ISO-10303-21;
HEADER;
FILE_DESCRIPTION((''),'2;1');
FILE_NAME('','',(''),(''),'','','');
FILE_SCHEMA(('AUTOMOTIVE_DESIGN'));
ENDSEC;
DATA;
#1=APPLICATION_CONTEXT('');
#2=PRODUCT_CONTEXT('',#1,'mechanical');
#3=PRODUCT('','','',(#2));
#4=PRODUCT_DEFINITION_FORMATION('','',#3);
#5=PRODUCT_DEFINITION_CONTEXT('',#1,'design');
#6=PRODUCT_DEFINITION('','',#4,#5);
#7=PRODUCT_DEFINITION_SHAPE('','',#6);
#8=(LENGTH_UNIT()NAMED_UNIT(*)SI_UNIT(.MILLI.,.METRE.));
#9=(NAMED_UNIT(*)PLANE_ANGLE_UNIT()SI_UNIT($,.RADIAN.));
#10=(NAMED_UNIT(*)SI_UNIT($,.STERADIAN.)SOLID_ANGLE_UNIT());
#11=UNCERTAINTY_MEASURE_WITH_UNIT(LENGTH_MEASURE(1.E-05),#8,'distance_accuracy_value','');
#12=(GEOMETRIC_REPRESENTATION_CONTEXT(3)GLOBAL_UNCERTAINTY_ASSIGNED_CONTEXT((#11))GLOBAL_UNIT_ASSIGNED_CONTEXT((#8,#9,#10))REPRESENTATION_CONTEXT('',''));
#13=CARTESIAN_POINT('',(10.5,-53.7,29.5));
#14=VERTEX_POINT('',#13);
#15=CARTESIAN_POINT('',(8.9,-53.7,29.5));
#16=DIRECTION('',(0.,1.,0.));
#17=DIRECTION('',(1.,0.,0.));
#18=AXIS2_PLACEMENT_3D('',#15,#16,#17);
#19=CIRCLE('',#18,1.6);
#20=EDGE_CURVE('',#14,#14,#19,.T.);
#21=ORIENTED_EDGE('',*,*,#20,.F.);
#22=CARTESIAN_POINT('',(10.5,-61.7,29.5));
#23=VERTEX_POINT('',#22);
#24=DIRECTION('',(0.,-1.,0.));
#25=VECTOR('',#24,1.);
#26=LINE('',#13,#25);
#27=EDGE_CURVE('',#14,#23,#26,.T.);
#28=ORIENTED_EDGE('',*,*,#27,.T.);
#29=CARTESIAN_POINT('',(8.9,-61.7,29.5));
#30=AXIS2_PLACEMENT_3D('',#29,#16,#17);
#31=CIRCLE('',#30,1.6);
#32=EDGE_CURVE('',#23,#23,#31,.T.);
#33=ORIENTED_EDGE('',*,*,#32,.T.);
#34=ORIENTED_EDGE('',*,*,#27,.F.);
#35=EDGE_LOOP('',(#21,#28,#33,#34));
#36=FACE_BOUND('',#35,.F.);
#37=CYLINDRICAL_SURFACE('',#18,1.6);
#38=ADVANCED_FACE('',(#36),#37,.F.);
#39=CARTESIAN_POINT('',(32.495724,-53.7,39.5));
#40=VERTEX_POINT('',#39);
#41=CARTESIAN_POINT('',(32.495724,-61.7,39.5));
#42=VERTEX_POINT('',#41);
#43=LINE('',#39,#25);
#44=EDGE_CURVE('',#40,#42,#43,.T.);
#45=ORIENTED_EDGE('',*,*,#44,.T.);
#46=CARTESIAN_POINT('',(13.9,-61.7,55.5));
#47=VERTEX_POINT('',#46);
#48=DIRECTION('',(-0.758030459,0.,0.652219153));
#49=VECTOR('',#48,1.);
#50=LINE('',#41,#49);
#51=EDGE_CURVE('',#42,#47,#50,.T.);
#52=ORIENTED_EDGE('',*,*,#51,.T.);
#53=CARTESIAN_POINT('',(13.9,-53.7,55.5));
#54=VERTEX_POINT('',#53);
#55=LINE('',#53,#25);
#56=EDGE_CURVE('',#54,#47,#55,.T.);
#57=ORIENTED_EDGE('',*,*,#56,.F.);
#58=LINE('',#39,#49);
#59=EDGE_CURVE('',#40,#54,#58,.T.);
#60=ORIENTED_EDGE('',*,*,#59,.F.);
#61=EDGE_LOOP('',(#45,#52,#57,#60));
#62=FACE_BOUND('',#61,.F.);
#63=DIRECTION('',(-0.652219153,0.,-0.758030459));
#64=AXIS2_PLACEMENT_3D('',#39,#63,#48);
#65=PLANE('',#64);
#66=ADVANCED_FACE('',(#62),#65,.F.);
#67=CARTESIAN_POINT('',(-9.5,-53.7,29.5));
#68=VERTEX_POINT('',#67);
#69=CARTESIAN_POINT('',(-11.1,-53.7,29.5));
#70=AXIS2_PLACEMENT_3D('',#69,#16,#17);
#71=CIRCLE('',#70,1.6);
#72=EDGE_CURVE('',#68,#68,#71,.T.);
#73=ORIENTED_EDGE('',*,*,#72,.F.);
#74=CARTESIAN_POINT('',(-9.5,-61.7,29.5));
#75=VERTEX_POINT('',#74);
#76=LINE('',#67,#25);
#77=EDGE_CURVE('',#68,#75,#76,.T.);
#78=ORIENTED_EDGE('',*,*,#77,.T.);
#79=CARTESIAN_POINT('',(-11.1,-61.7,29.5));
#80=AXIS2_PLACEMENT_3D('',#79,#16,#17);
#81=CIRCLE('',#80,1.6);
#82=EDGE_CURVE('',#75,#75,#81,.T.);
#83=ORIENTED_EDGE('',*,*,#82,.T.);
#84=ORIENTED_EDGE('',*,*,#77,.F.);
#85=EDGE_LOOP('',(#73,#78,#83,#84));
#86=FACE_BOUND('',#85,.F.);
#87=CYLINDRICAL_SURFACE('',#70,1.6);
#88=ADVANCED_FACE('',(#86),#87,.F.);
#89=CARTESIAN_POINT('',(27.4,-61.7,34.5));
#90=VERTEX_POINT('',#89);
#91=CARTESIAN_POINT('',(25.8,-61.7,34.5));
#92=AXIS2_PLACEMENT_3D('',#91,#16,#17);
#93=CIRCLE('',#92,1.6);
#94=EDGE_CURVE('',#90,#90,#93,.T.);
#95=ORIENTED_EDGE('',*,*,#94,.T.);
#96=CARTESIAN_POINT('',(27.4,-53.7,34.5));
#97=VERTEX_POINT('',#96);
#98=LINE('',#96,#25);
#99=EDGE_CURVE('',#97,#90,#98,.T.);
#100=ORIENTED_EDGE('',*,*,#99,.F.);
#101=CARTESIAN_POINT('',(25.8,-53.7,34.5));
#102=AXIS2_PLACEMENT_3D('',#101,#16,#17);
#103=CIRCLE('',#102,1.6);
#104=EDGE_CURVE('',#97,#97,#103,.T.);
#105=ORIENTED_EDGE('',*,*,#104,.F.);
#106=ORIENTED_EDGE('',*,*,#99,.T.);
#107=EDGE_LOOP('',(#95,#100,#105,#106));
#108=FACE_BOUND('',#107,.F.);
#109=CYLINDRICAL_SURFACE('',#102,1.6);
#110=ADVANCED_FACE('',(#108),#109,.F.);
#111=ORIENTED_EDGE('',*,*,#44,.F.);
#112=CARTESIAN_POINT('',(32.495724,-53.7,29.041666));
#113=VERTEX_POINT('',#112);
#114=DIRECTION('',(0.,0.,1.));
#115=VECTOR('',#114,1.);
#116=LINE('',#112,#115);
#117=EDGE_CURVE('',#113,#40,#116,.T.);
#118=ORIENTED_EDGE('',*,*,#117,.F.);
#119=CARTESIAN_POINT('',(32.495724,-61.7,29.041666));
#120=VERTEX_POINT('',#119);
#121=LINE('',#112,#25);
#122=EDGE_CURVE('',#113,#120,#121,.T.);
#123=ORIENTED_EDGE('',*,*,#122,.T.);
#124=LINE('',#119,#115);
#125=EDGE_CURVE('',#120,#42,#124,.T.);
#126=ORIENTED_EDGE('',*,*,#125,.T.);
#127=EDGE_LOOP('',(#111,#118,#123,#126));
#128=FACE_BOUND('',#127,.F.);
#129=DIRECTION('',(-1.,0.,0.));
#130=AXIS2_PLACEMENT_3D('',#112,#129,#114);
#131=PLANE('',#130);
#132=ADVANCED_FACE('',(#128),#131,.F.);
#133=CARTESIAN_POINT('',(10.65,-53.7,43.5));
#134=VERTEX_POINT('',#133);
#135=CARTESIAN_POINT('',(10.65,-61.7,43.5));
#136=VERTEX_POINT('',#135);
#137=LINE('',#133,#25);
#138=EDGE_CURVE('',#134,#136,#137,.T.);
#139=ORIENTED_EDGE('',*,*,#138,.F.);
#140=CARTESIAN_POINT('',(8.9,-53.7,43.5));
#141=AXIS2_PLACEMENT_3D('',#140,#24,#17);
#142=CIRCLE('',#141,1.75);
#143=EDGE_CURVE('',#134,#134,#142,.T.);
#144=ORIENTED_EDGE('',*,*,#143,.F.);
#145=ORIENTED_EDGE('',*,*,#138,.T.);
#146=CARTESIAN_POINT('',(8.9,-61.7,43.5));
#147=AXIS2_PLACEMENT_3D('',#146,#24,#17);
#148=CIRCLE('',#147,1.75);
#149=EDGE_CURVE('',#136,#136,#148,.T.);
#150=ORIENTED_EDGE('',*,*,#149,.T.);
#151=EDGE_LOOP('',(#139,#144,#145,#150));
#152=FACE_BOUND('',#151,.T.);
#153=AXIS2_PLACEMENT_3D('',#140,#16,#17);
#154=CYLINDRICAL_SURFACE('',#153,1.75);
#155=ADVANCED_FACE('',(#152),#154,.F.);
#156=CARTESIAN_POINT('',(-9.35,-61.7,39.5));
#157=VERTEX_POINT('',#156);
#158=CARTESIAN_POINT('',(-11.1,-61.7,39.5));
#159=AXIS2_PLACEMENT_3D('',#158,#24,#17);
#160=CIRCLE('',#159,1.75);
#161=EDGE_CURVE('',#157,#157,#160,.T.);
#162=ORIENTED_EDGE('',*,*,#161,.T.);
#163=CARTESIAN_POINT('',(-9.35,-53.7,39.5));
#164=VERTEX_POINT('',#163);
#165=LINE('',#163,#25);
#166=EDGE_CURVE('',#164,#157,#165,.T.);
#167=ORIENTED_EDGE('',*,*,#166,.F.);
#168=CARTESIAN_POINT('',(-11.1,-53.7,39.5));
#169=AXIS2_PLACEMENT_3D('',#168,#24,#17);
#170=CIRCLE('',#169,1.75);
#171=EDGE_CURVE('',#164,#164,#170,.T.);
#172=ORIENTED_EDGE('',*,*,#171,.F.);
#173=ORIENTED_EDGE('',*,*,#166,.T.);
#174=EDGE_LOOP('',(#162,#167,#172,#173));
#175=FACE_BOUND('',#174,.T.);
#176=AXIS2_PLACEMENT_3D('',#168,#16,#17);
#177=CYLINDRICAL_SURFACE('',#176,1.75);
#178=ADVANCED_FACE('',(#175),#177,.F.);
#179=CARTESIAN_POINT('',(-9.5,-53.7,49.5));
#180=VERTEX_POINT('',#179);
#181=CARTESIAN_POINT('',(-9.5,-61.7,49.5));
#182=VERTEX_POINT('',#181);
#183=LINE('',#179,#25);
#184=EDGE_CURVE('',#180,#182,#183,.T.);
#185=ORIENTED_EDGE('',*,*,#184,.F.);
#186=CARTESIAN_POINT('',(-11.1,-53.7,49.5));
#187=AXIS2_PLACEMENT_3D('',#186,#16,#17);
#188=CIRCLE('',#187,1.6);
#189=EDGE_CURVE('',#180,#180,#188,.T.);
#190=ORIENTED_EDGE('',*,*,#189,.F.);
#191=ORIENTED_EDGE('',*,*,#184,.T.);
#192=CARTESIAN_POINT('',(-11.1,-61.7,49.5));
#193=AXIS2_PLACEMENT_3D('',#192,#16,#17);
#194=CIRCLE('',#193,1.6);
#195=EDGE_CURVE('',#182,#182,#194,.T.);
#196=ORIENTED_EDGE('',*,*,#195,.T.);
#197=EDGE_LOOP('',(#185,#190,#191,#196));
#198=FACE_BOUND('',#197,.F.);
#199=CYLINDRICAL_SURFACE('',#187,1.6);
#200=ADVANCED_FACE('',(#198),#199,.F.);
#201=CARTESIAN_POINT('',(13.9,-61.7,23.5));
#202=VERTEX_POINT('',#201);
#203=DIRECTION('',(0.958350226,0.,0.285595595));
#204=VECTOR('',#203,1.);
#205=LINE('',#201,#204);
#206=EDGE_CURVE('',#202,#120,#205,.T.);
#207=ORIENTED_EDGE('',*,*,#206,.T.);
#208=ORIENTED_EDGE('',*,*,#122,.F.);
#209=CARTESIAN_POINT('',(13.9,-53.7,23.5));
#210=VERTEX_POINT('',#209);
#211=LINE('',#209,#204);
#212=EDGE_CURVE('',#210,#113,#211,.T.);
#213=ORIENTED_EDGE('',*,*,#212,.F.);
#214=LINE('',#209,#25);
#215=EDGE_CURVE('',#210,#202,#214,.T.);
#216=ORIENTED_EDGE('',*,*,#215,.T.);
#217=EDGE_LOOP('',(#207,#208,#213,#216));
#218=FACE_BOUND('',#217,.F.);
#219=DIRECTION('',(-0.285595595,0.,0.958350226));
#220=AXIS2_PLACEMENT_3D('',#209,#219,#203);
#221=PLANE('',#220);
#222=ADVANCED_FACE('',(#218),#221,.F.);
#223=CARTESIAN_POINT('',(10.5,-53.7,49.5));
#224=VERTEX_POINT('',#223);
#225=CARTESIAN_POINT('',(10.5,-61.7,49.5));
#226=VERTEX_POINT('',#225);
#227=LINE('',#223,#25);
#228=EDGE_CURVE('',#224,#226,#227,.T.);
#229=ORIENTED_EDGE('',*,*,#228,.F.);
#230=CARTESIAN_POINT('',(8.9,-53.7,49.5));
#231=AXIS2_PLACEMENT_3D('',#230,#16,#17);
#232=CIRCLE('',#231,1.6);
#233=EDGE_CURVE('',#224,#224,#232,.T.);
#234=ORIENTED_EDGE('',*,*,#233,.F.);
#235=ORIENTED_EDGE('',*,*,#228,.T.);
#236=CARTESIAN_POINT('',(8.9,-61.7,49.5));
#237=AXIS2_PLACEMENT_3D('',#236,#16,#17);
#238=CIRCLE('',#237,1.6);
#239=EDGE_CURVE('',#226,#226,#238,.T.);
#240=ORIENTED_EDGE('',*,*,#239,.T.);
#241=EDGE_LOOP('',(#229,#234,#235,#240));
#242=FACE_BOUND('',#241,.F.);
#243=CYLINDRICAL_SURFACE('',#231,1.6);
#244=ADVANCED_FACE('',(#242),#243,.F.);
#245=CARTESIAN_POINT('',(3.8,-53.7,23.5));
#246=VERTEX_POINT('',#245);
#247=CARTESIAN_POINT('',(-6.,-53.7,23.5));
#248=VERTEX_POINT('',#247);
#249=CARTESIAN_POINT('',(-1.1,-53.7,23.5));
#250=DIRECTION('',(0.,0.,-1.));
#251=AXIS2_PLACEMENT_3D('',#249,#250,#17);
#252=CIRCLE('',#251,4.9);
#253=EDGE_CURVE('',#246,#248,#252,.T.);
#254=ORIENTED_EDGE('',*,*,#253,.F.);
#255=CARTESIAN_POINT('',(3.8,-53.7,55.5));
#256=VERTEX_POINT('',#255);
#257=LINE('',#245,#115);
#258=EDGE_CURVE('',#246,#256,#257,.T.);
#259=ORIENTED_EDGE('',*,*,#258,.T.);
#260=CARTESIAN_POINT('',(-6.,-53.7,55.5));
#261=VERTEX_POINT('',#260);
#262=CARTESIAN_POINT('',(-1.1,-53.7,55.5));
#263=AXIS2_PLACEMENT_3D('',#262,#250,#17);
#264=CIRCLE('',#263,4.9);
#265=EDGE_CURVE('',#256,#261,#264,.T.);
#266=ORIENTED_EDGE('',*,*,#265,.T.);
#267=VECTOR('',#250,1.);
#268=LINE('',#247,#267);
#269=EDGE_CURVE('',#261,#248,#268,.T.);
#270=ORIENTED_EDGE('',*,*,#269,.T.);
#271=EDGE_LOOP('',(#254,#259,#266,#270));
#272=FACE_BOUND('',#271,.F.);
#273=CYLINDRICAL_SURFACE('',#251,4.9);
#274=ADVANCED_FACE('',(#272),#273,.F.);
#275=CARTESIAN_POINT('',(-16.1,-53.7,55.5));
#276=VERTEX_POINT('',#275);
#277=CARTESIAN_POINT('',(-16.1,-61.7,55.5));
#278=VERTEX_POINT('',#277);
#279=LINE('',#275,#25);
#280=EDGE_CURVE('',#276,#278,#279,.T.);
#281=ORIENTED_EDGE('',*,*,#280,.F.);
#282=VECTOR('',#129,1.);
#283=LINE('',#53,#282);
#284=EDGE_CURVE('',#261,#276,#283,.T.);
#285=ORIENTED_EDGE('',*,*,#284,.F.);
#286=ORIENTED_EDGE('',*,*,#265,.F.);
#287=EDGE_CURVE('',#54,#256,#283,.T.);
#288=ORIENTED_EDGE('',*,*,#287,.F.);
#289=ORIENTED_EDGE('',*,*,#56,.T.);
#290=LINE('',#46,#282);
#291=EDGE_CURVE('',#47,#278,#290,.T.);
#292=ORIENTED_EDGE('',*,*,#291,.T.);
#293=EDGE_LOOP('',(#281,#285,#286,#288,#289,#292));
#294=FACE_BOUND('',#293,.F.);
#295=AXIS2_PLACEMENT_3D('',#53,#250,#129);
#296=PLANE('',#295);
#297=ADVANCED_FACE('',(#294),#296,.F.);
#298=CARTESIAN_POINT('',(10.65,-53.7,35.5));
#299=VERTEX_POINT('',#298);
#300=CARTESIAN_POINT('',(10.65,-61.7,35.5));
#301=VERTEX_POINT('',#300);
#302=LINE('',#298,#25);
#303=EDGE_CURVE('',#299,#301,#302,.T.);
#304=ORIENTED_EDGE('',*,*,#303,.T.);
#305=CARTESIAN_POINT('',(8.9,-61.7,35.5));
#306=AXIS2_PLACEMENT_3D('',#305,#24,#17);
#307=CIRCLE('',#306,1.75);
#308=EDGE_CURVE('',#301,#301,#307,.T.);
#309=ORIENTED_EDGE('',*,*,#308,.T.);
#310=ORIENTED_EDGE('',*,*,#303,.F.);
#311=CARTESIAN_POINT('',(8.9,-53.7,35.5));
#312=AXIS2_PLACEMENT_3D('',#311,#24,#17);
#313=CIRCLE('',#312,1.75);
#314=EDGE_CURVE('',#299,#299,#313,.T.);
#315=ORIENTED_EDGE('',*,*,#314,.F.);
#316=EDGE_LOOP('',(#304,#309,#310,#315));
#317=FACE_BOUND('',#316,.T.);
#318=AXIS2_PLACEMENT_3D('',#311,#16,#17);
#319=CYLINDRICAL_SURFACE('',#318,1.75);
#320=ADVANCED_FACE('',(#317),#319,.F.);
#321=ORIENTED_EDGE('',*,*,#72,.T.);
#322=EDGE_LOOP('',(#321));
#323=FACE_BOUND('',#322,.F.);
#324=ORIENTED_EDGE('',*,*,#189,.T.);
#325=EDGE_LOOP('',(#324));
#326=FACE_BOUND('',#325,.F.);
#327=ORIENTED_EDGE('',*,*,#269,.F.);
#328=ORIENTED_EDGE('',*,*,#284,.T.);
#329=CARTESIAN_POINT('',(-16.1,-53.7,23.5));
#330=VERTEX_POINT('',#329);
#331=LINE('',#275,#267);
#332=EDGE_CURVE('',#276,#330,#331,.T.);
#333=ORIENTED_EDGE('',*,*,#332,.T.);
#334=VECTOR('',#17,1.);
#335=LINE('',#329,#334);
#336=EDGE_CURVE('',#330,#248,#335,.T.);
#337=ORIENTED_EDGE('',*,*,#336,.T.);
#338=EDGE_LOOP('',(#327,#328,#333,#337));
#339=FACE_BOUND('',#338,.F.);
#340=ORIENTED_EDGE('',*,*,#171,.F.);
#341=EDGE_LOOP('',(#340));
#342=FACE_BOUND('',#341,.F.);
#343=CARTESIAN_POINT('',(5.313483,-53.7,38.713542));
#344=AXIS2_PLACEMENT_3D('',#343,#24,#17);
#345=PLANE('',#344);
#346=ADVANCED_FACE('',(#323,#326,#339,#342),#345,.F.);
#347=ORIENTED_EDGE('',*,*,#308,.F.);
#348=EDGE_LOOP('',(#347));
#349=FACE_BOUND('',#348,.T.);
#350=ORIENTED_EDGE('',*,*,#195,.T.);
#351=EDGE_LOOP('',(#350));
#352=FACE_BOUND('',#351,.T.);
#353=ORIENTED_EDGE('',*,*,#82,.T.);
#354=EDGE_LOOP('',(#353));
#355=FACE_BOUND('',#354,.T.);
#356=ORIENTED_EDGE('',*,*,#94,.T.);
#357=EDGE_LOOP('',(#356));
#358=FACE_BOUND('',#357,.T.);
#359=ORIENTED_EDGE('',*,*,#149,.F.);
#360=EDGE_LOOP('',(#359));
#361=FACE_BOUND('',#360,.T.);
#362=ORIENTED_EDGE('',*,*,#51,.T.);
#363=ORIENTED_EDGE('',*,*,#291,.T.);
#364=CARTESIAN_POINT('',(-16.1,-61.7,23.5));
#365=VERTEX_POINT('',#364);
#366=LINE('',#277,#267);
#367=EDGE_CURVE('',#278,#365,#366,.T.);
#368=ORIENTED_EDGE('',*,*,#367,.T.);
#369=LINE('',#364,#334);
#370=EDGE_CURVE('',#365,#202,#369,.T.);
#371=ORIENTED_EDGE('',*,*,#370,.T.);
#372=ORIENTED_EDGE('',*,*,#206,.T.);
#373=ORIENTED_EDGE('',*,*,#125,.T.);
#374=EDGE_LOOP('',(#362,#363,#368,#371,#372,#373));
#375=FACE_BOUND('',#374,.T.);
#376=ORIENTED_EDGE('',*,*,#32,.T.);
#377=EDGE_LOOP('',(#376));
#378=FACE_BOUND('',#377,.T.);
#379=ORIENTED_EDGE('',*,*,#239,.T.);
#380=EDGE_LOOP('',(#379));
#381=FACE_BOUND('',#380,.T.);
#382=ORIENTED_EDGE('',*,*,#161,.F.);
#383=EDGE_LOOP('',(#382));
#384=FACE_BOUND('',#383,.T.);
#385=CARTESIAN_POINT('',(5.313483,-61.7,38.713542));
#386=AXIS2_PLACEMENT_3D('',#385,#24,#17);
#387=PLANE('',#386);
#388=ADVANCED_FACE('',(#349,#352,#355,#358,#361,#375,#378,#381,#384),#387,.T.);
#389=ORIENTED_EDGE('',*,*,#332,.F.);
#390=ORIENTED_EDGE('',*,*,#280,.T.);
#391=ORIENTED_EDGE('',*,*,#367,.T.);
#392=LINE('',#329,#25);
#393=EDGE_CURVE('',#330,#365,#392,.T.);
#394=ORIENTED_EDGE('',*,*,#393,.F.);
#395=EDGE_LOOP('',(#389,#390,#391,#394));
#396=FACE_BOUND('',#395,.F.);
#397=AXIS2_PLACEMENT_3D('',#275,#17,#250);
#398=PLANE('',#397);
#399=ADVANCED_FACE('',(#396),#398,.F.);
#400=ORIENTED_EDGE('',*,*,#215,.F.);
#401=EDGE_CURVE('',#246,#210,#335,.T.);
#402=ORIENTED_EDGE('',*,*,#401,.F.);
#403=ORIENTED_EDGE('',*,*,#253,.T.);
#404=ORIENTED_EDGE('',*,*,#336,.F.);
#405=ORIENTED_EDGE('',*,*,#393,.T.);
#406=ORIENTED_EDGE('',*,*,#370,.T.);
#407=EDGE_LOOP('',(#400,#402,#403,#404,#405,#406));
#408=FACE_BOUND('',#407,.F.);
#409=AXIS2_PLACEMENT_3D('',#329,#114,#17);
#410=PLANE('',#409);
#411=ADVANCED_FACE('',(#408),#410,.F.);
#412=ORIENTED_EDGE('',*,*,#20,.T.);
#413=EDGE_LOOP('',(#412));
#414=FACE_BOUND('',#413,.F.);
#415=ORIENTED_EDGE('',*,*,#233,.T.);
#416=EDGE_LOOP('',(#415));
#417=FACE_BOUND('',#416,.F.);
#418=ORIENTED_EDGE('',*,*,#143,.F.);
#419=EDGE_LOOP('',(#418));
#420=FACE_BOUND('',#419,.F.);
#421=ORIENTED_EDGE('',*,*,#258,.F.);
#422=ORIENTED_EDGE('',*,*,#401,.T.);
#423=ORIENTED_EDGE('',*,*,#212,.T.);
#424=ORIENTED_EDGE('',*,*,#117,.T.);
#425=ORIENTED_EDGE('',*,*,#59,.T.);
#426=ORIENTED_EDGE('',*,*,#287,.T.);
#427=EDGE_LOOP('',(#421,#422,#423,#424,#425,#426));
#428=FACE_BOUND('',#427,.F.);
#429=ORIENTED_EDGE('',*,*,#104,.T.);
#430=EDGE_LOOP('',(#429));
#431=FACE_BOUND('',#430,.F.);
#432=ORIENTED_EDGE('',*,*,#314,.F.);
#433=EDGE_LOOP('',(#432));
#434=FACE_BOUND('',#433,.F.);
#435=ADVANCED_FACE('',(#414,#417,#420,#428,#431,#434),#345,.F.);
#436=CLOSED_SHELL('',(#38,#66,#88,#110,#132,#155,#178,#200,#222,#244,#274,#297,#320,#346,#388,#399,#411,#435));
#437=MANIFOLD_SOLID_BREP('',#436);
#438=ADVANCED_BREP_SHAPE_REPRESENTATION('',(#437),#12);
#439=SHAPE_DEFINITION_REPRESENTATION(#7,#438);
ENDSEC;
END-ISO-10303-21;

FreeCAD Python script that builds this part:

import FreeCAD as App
import Part
import Sketcher
Q = App.Units.Quantity


def add_polygon(sketch, points):
    """Adds a closed chain of lines whose ends are joined by coincident constraints."""
    first, n = sketch.GeometryCount, len(points)
    for a, b in zip(points, points[1:] + points[:1]):
        sketch.addGeometry(Part.LineSegment(App.Vector(*a, 0), App.Vector(*b, 0)), False)
    for i in range(n):
        sketch.addConstraint(Sketcher.Constraint("Coincident", first + i, 2, first + (i + 1) % n, 1))

doc = App.newDocument("Part")
body = doc.addObject("PartDesign::Body", "Body")

# Sketch on XZ plane
sketch1 = doc.addObject("Sketcher::SketchObject", "Sketch")
body.addObject(sketch1)
sketch1.AttachmentSupport = (doc.XZ_Plane, [""])
sketch1.MapMode = "FlatFace"
add_polygon(sketch1, [(-15, -16), (15, -16), (33.6, -10.5), (33.6, 0), (15, 16), (-15, 16)])  # lines 0-5
sketch1.addGeometry(Part.Circle(App.Vector(10, -4, 0), App.Vector(0, 0, 1), 1.8), False)  # 6
sketch1.addGeometry(Part.Circle(App.Vector(-10, 0, 0), App.Vector(0, 0, 1), 1.8), False)  # 7
sketch1.addGeometry(Part.Circle(App.Vector(10, 4, 0), App.Vector(0, 0, 1), 1.8), False)  # 8
sketch1.addConstraint([
    Sketcher.Constraint("Horizontal", 0),
    Sketcher.Constraint("Vertical", 2),
    Sketcher.Constraint("Horizontal", 4),
    Sketcher.Constraint("Vertical", 5),
    Sketcher.Constraint("Equal", 6, 7),
    Sketcher.Constraint("Equal", 7, 8),
    Sketcher.Constraint("Symmetric", 0, 2, 4, 2, -1, 1),
    Sketcher.Constraint("Symmetric", 6, 3, 8, 3, -1),
    Sketcher.Constraint("PointOnObject", 7, 3, -1),
    Sketcher.Constraint("PointOnObject", 2, 2, -1),
    Sketcher.Constraint("Vertical", 0, 2, 3, 2),
    Sketcher.Constraint("Diameter", 6, Q("3.5 mm")),
    Sketcher.Constraint("DistanceX", 0, 1, 0, 2, Q("30 mm")),
    Sketcher.Constraint("DistanceY", 5, 2, 5, 1, Q("32 mm")),
    Sketcher.Constraint("DistanceX", -1, 1, 6, 3, Q("10 mm")),
    Sketcher.Constraint("DistanceY", 6, 3, -1, 1, Q("4 mm")),
    Sketcher.Constraint("DistanceX", 7, 3, -1, 1, Q("10 mm")),
    Sketcher.Constraint("Distance", 1, Q("19.403892 mm")),
    Sketcher.Constraint("Distance", 3, Q("24.531632 mm")),
])
pad1 = doc.addObject("PartDesign::Pad", "Pad")
body.addObject(pad1)
pad1.Profile = sketch1
pad1.Length = 8

# Sketch on XY plane
sketch2 = doc.addObject("Sketcher::SketchObject", "Sketch001")
body.addObject(sketch2)
sketch2.AttachmentSupport = (doc.XY_Plane, [""])
sketch2.MapMode = "FlatFace"
sketch2.AttachmentOffset = App.Placement(App.Vector(0, 0, -16), App.Rotation())
sketch2.addGeometry(Part.Circle(App.Vector(0, 0, 0), App.Vector(0, 0, 1), 4.9), False)
sketch2.addConstraint([
    Sketcher.Constraint("Coincident", 0, 3, -1, 1),
    Sketcher.Constraint("Diameter", 0, Q("9.8 mm")),
])
pocket1 = doc.addObject("PartDesign::Pocket", "Pocket")
body.addObject(pocket1)
pocket1.Profile = sketch2
pocket1.Length = 38
pocket1.Reversed = True

# Sketch on XZ plane
sketch3 = doc.addObject("Sketcher::SketchObject", "Sketch002")
body.addObject(sketch3)
sketch3.AttachmentSupport = (doc.XZ_Plane, [""])
sketch3.MapMode = "FlatFace"
sketch3.addGeometry([
    Part.Circle(App.Vector(26.9, -5, 0), App.Vector(0, 0, 1), 1.6),  # 0
    Part.Circle(App.Vector(-10, -10, 0), App.Vector(0, 0, 1), 1.6),  # 1
    Part.Circle(App.Vector(10, -10, 0), App.Vector(0, 0, 1), 1.6),  # 2
    Part.Circle(App.Vector(10, 10, 0), App.Vector(0, 0, 1), 1.6),  # 3
    Part.Circle(App.Vector(-10, 10, 0), App.Vector(0, 0, 1), 1.6),  # 4
], False)
sketch3.addConstraint([
    Sketcher.Constraint("Equal", 0, 1),
    Sketcher.Constraint("Equal", 1, 2),
    Sketcher.Constraint("Equal", 2, 3),
    Sketcher.Constraint("Equal", 3, 4),
    Sketcher.Constraint("Symmetric", 1, 3, 3, 3, -1, 1),
    Sketcher.Constraint("Symmetric", 2, 3, 4, 3, -1, 1),
    Sketcher.Constraint("Symmetric", 1, 3, 2, 3, -2),
    Sketcher.Constraint("Diameter", 0, Q("3.2 mm")),
    Sketcher.Constraint("DistanceY", 0, 3, -1, 1, Q("5 mm")),
    Sketcher.Constraint("DistanceX", 1, 3, -1, 1, Q("10 mm")),
    Sketcher.Constraint("DistanceY", 1, 3, -1, 1, Q("10 mm")),
    Sketcher.Constraint("DistanceX", -1, 1, 0, 3, Q("26.9 mm")),
])
pocket2 = doc.addObject("PartDesign::Pocket", "Pocket001")
body.addObject(pocket2)
pocket2.Profile = sketch3
pocket2.Length = 10
pocket2.Reversed = True
body2 = doc.addObject("PartDesign::Body", "Body001")
doc.recompute()

body.Placement = App.Placement(App.Vector(-1.1, -53.7, 39.5), App.Rotation(App.Vector(0, 0, 1), 0))
boolean = doc.addObject("PartDesign::Boolean", "Boolean")
body2.addObject(boolean)
boolean.Type = "Fuse"
boolean.addObjects([body])

doc.recompute()
